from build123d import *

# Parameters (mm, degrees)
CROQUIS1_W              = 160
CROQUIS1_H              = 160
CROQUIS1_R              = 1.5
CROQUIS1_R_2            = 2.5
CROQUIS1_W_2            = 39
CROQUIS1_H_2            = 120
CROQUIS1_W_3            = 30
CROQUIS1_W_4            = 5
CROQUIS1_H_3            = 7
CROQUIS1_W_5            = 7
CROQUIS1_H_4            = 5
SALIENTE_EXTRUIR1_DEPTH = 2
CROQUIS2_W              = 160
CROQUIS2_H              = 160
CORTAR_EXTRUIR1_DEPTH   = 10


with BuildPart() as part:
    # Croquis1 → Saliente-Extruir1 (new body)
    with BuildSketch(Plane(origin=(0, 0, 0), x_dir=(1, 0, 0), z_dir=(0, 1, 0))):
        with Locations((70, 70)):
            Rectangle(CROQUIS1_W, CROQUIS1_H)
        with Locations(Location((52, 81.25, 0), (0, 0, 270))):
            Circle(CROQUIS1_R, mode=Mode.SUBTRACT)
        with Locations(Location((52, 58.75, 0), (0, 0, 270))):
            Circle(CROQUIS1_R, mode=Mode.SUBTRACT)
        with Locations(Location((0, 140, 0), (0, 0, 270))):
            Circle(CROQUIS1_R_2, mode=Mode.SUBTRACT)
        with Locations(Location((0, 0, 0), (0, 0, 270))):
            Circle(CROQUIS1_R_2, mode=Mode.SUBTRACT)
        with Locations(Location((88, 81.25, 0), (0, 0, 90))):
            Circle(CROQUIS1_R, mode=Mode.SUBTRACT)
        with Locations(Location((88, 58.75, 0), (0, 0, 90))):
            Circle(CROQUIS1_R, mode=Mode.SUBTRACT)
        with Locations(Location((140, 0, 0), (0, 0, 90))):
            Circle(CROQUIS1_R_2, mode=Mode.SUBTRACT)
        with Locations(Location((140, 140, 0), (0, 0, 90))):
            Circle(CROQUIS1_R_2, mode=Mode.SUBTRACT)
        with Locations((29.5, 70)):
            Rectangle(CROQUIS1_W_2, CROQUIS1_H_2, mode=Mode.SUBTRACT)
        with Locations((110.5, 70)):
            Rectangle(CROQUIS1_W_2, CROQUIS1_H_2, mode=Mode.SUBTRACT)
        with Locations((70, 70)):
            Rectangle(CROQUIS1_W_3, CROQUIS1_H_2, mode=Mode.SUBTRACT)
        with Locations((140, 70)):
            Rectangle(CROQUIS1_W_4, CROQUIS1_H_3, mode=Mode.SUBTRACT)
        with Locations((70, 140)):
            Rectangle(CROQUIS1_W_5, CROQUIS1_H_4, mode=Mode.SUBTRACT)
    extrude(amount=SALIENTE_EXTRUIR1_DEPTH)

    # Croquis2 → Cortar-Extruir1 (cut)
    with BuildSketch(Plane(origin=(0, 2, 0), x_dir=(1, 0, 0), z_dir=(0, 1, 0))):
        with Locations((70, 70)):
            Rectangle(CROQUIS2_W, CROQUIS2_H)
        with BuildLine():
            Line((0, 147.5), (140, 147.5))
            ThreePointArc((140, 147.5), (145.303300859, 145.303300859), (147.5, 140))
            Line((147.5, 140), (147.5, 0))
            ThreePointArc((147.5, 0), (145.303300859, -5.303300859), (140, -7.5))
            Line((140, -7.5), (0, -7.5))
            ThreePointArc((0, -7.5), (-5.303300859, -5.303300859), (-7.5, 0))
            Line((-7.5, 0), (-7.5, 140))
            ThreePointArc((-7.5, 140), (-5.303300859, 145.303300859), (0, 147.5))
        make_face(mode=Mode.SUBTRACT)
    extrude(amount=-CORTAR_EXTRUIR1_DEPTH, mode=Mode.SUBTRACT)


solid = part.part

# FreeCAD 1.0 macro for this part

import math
import FreeCAD as App
import Part
import Sketcher
Q = App.Units.Quantity


def add_polygon(sketch, points):
    """Adds a closed chain of lines whose ends are joined by coincident constraints."""
    first, n = sketch.GeometryCount, len(points)
    for a, b in zip(points, points[1:] + points[:1]):
        sketch.addGeometry(Part.LineSegment(App.Vector(*a, 0), App.Vector(*b, 0)), False)
    for i in range(n):
        sketch.addConstraint(Sketcher.Constraint("Coincident", first + i, 2, first + (i + 1) % n, 1))

doc = App.newDocument("Part")
params = doc.addObject("Spreadsheet::Sheet", "Params")
for row, (alias, value) in enumerate([
    ("sketch1_diameter", "5 mm"),
    ("sketch1_diameter2", "3 mm"),
    ("sketch1_width", "160 mm"),
    ("sketch1_width2", "39 mm"),
    ("sketch1_width3", "30 mm"),
    ("pad1_length", "2 mm"),
    ("sketch2_radius", "7.5 mm"),
    ("sketch2_width", "160 mm"),
    ("sketch2_width2", "140 mm"),
    ("pocket1_length", "10 mm"),
], start=1):
    params.set(f"A{row}", alias)
    params.set(f"B{row}", "=" + value)
    params.setAlias(f"B{row}", alias)

body = doc.addObject("PartDesign::Body", "Body")

# Sketch on XZ plane
sketch1 = body.newObject("Sketcher::SketchObject", "Sketch")
sketch1.AttachmentSupport = (doc.getObject("XZ_Plane"), [""])
sketch1.MapMode = "FlatFace"
add_polygon(sketch1, [(-10, -150), (-10, 10), (150, 10), (150, -150)])  # lines 0-3
sketch1.addGeometry(Part.Circle(App.Vector(0, 0, 0), App.Vector(0, 0, 1), 2.5), False)  # 4
sketch1.addGeometry(Part.Circle(App.Vector(52, -58.8, 0), App.Vector(0, 0, 1), 1.5), False)  # 5
sketch1.addGeometry(Part.Circle(App.Vector(140, 0, 0), App.Vector(0, 0, 1), 2.5), False)  # 6
sketch1.addGeometry(Part.Circle(App.Vector(88, -58.8, 0), App.Vector(0, 0, 1), 1.5), False)  # 7
add_polygon(sketch1, [(49, -10), (10, -10), (10, -130), (49, -130)])  # lines 8-11
sketch1.addGeometry(Part.Circle(App.Vector(52, -81.2, 0), App.Vector(0, 0, 1), 1.5), False)  # 12
sketch1.addGeometry(Part.Circle(App.Vector(0, -140, 0), App.Vector(0, 0, 1), 2.5), False)  # 13
add_polygon(sketch1, [(85, -10), (55, -10), (55, -130), (85, -130)])  # lines 14-17
sketch1.addGeometry(Part.Circle(App.Vector(88, -81.2, 0), App.Vector(0, 0, 1), 1.5), False)  # 18
add_polygon(sketch1, [(130, -10), (91, -10), (91, -130), (130, -130)])  # lines 19-22
add_polygon(sketch1, [(142.5, -66.5), (137.5, -66.5), (137.5, -73.5), (142.5, -73.5)])  # lines 23-26
add_polygon(sketch1, [(73.5, -137.5), (66.5, -137.5), (66.5, -142.5), (73.5, -142.5)])  # lines 27-30
sketch1.addGeometry(Part.Circle(App.Vector(140, -140, 0), App.Vector(0, 0, 1), 2.5), False)  # 31
sketch1.addConstraint(Sketcher.Constraint("Vertical", 0))
sketch1.addConstraint(Sketcher.Constraint("Horizontal", 1))
sketch1.addConstraint(Sketcher.Constraint("Vertical", 2))
sketch1.addConstraint(Sketcher.Constraint("Horizontal", 3))
sketch1.addConstraint(Sketcher.Constraint("Horizontal", 8))
sketch1.addConstraint(Sketcher.Constraint("Vertical", 9))
sketch1.addConstraint(Sketcher.Constraint("Horizontal", 10))
sketch1.addConstraint(Sketcher.Constraint("Vertical", 11))
sketch1.addConstraint(Sketcher.Constraint("Horizontal", 14))
sketch1.addConstraint(Sketcher.Constraint("Vertical", 15))
sketch1.addConstraint(Sketcher.Constraint("Horizontal", 16))
sketch1.addConstraint(Sketcher.Constraint("Vertical", 17))
sketch1.addConstraint(Sketcher.Constraint("Horizontal", 19))
sketch1.addConstraint(Sketcher.Constraint("Vertical", 20))
sketch1.addConstraint(Sketcher.Constraint("Horizontal", 21))
sketch1.addConstraint(Sketcher.Constraint("Vertical", 22))
sketch1.addConstraint(Sketcher.Constraint("Horizontal", 23))
sketch1.addConstraint(Sketcher.Constraint("Vertical", 24))
sketch1.addConstraint(Sketcher.Constraint("Horizontal", 25))
sketch1.addConstraint(Sketcher.Constraint("Vertical", 26))
sketch1.addConstraint(Sketcher.Constraint("Horizontal", 27))
sketch1.addConstraint(Sketcher.Constraint("Vertical", 28))
sketch1.addConstraint(Sketcher.Constraint("Horizontal", 29))
sketch1.addConstraint(Sketcher.Constraint("Vertical", 30))
sketch1.addConstraint(Sketcher.Constraint("Coincident", 4, 3, -1, 1))
sketch1.addConstraint(Sketcher.Constraint("Equal", 4, 6))
sketch1.addConstraint(Sketcher.Constraint("Equal", 5, 7))
sketch1.addConstraint(Sketcher.Constraint("Equal", 7, 12))
sketch1.addConstraint(Sketcher.Constraint("Equal", 6, 13))
sketch1.addConstraint(Sketcher.Constraint("Equal", 12, 18))
sketch1.addConstraint(Sketcher.Constraint("Equal", 13, 31))
sketch1.addConstraint(Sketcher.Constraint("Symmetric", 0, 2, 8, 2, -1, 1))
sketch1.addConstraint(Sketcher.Constraint("PointOnObject", 6, 3, -1))
sketch1.addConstraint(Sketcher.Constraint("PointOnObject", 13, 3, -2))
sketch1.addConstraint(Sketcher.Constraint("Horizontal", 5, 3, 7, 3))
sketch1.addConstraint(Sketcher.Constraint("Horizontal", 12, 3, 18, 3))
sketch1.addConstraint(Sketcher.Constraint("Horizontal", 13, 3, 31, 3))
sketch1.addConstraint(Sketcher.Constraint("Horizontal", 11, 2, 14, 2))
sketch1.addConstraint(Sketcher.Constraint("Horizontal", 10, 2, 15, 2))
sketch1.addConstraint(Sketcher.Constraint("Horizontal", 17, 2, 19, 2))
sketch1.addConstraint(Sketcher.Constraint("Horizontal", 16, 2, 20, 2))
sketch1.addConstraint(Sketcher.Constraint("Vertical", 5, 3, 12, 3))
sketch1.addConstraint(Sketcher.Constraint("Vertical", 7, 3, 18, 3))
sketch1.addConstraint(Sketcher.Constraint("Vertical", 6, 3, 31, 3))
sketch1.addConstraint(Sketcher.Constraint("Equal", 10, 19))
sketch1.addConstraint(Sketcher.Constraint("Equal", 3, 0))
sketch1.addConstraint(Sketcher.Constraint("Equal", 29, 24))
sketch1.addConstraint(Sketcher.Constraint("Equal", 25, 28))
sketch1.addConstraint(Sketcher.Constraint("Diameter", 4, Q("5 mm")))
sketch1.addConstraint(Sketcher.Constraint("Diameter", 5, Q("3 mm")))
sketch1.addConstraint(Sketcher.Constraint("DistanceX", 1, 1, 1, 2, Q("160 mm")))
sketch1.addConstraint(Sketcher.Constraint("DistanceX", 8, 2, 8, 1, Q("39 mm")))
sketch1.addConstraint(Sketcher.Constraint("DistanceX", 14, 2, 14, 1, Q("30 mm")))
sketch1.addConstraint(Sketcher.Constraint("DistanceX", 23, 2, 23, 1, Q("5 mm")))
sketch1.addConstraint(Sketcher.Constraint("DistanceX", 27, 2, 27, 1, Q("7 mm")))
sketch1.addConstraint(Sketcher.Constraint("DistanceY", 9, 2, 9, 1, Q("120 mm")))
sketch1.addConstraint(Sketcher.Constraint("DistanceX", -1, 1, 5, 3, Q("52 mm")))
sketch1.addConstraint(Sketcher.Constraint("DistanceX", -1, 1, 6, 3, Q("140 mm")))
sketch1.addConstraint(Sketcher.Constraint("DistanceX", -1, 1, 7, 3, Q("88 mm")))
sketch1.addConstraint(Sketcher.Constraint("DistanceY", 13, 3, -1, 1, Q("140 mm")))
sketch1.addConstraint(Sketcher.Constraint("DistanceX", 0, 2, -1, 1, Q("10 mm")))
sketch1.addConstraint(Sketcher.Constraint("DistanceY", -1, 1, 0, 2, Q("10 mm")))
sketch1.addConstraint(Sketcher.Constraint("DistanceX", -1, 1, 14, 2, Q("55 mm")))
sketch1.addConstraint(Sketcher.Constraint("DistanceX", -1, 1, 19, 2, Q("91 mm")))
sketch1.addConstraint(Sketcher.Constraint("DistanceX", -1, 1, 23, 2, Q("137.5 mm")))
sketch1.addConstraint(Sketcher.Constraint("DistanceY", 23, 2, -1, 1, Q("66.5 mm")))
sketch1.addConstraint(Sketcher.Constraint("DistanceX", -1, 1, 27, 2, Q("66.5 mm")))
sketch1.addConstraint(Sketcher.Constraint("DistanceY", 27, 2, -1, 1, Q("137.5 mm")))
sketch1.addConstraint(Sketcher.Constraint("DistanceY", 12, 3, 5, 3, Q("22.5 mm")))
sketch1.addConstraint(Sketcher.Constraint("DistanceY", 5, 3, -1, 1, Q("58.75 mm")))
sketch1.setExpression("Constraints[72]", "Params.sketch1_diameter")
sketch1.setExpression("Constraints[73]", "Params.sketch1_diameter2")
sketch1.setExpression("Constraints[74]", "Params.sketch1_width")
sketch1.setExpression("Constraints[75]", "Params.sketch1_width2")
sketch1.setExpression("Constraints[76]", "Params.sketch1_width3")
pad1 = body.newObject("PartDesign::Pad", "Pad")
pad1.Profile = sketch1
pad1.setExpression("Length", "Params.pad1_length")
pad1.Reversed = True

# Sketch on XZ plane
sketch2 = body.newObject("Sketcher::SketchObject", "Sketch001")
sketch2.AttachmentSupport = (doc.getObject("XZ_Plane"), [""])
sketch2.MapMode = "FlatFace"
sketch2.AttachmentOffset = App.Placement(App.Vector(0, 0, -2), App.Rotation())
add_polygon(sketch2, [(-10, -150), (-10, 10), (150, 10), (150, -150)])  # lines 0-3
sketch2.addGeometry(Part.ArcOfCircle(Part.Circle(App.Vector(0, -140, 0), App.Vector(0, 0, 1), 8), math.radians(180), math.radians(270)), False)  # 4
sketch2.addGeometry(Part.LineSegment(App.Vector(0, -148, 0), App.Vector(140, -148, 0)), False)  # 5
sketch2.addGeometry(Part.ArcOfCircle(Part.Circle(App.Vector(140, -140, 0), App.Vector(0, 0, 1), 8), math.radians(-90), math.radians(0)), False)  # 6
sketch2.addGeometry(Part.LineSegment(App.Vector(148, -140, 0), App.Vector(148, 0, 0)), False)  # 7
sketch2.addGeometry(Part.ArcOfCircle(Part.Circle(App.Vector(140, 0, 0), App.Vector(0, 0, 1), 8), math.radians(0), math.radians(90)), False)  # 8
sketch2.addGeometry(Part.LineSegment(App.Vector(140, 8, 0), App.Vector(0, 8, 0)), False)  # 9
sketch2.addGeometry(Part.ArcOfCircle(Part.Circle(App.Vector(0, 0, 0), App.Vector(0, 0, 1), 8), math.radians(90), math.radians(180)), False)  # 10
sketch2.addGeometry(Part.LineSegment(App.Vector(-8, 0, 0), App.Vector(-8, -140, 0)), False)  # 11
sketch2.addConstraint(Sketcher.Constraint("Tangent", 4, 2, 5, 1))
sketch2.addConstraint(Sketcher.Constraint("Tangent", 5, 2, 6, 1))
sketch2.addConstraint(Sketcher.Constraint("Tangent", 6, 2, 7, 1))
sketch2.addConstraint(Sketcher.Constraint("Tangent", 7, 2, 8, 1))
sketch2.addConstraint(Sketcher.Constraint("Tangent", 8, 2, 9, 1))
sketch2.addConstraint(Sketcher.Constraint("Tangent", 9, 2, 10, 1))
sketch2.addConstraint(Sketcher.Constraint("Tangent", 10, 2, 11, 1))
sketch2.addConstraint(Sketcher.Constraint("Tangent", 11, 2, 4, 1))
sketch2.addConstraint(Sketcher.Constraint("Vertical", 0))
sketch2.addConstraint(Sketcher.Constraint("Horizontal", 1))
sketch2.addConstraint(Sketcher.Constraint("Vertical", 2))
sketch2.addConstraint(Sketcher.Constraint("Horizontal", 3))
sketch2.addConstraint(Sketcher.Constraint("Horizontal", 5))
sketch2.addConstraint(Sketcher.Constraint("Vertical", 7))
sketch2.addConstraint(Sketcher.Constraint("Horizontal", 9))
sketch2.addConstraint(Sketcher.Constraint("Vertical", 11))
sketch2.addConstraint(Sketcher.Constraint("Coincident", 10, 3, -1, 1))
sketch2.addConstraint(Sketcher.Constraint("Equal", 4, 6))
sketch2.addConstraint(Sketcher.Constraint("Equal", 6, 8))
sketch2.addConstraint(Sketcher.Constraint("Equal", 8, 10))
sketch2.addConstraint(Sketcher.Constraint("Equal", 3, 0))
sketch2.addConstraint(Sketcher.Constraint("Equal", 9, 7))
sketch2.addConstraint(Sketcher.Constraint("Radius", 4, Q("7.5 mm")))
sketch2.addConstraint(Sketcher.Constraint("DistanceX", 1, 1, 1, 2, Q("160 mm")))
sketch2.addConstraint(Sketcher.Constraint("DistanceX", 5, 1, 5, 2, Q("140 mm")))
sketch2.addConstraint(Sketcher.Constraint("DistanceX", 0, 2, -1, 1, Q("10 mm")))
sketch2.addConstraint(Sketcher.Constraint("DistanceY", -1, 1, 0, 2, Q("10 mm")))
sketch2.setExpression("Constraints[26]", "Params.sketch2_radius")
sketch2.setExpression("Constraints[27]", "Params.sketch2_width")
sketch2.setExpression("Constraints[28]", "Params.sketch2_width2")
pocket1 = body.newObject("PartDesign::Pocket", "Pocket")
pocket1.Profile = sketch2
pocket1.setExpression("Length", "Params.pocket1_length")
pocket1.Reversed = True

doc.recompute()
